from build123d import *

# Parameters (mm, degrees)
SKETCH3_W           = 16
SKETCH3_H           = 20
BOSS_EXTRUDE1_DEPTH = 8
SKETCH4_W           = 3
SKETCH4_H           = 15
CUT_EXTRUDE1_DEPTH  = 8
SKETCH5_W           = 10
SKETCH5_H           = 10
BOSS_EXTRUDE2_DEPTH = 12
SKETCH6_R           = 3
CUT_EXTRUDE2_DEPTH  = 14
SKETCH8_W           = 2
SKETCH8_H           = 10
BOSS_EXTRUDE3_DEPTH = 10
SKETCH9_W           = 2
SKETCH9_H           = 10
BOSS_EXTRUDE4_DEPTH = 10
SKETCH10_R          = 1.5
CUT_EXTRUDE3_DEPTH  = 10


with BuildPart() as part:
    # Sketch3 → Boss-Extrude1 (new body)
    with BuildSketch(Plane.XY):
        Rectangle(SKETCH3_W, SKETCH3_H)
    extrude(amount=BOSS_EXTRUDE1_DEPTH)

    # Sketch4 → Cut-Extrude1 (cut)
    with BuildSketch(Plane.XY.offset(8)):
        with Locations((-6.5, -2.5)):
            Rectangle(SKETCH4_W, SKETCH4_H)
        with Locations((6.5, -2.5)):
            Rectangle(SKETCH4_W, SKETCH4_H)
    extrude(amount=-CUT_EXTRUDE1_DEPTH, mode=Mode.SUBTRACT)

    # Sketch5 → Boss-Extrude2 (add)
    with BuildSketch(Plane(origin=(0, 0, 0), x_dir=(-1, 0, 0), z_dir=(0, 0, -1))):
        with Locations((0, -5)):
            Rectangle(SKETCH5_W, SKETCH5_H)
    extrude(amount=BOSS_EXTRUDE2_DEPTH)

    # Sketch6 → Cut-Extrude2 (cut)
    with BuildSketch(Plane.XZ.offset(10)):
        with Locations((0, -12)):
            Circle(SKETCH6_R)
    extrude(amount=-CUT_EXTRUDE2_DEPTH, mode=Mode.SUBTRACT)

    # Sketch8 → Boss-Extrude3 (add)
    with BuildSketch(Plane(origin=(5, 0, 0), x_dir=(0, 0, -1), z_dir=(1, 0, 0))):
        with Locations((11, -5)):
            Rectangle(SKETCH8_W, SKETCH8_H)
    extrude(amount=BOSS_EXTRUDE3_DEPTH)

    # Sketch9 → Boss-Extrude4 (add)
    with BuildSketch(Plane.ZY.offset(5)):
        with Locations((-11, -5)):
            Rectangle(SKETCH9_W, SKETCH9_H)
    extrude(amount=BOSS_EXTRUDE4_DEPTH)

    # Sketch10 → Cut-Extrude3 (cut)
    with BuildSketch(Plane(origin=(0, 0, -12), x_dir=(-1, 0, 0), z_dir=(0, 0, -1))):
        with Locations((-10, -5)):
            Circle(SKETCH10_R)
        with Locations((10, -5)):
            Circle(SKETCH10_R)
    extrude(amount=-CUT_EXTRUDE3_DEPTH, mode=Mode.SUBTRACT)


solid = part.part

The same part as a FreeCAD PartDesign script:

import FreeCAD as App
import Part
import Sketcher

V = App.Vector
Q = App.Units.Quantity

doc = App.newDocument("Part")
body = doc.addObject("PartDesign::Body", "Body")

# Sketch on XY plane
sketch1 = body.newObject("Sketcher::SketchObject", "Sketch")
sketch1.AttachmentSupport = (doc.getObject("XY_Plane"), [""])
sketch1.MapMode = "FlatFace"
sketch1.addGeometry([
    Part.LineSegment(V(-8, 10, 0), V(-8, -10, 0)),
    Part.LineSegment(V(-8, -10, 0), V(8, -10, 0)),
    Part.LineSegment(V(8, -10, 0), V(8, 10, 0)),
    Part.LineSegment(V(8, 10, 0), V(-8, 10, 0)),
], False)
sketch1.addConstraint([
    Sketcher.Constraint("Coincident", 0, 2, 1, 1),
    Sketcher.Constraint("Coincident", 1, 2, 2, 1),
    Sketcher.Constraint("Coincident", 2, 2, 3, 1),
    Sketcher.Constraint("Coincident", 3, 2, 0, 1),
    Sketcher.Constraint("Vertical", 0),
    Sketcher.Constraint("Horizontal", 1),
    Sketcher.Constraint("Vertical", 2),
    Sketcher.Constraint("Horizontal", 3),
    Sketcher.Constraint("Symmetric", 0, 2, 2, 2, -1, 1),
    Sketcher.Constraint("DistanceX", 1, 1, 1, 2, Q("16 mm")),
    Sketcher.Constraint("DistanceY", 0, 2, 0, 1, Q("20 mm")),
])
pad1 = body.newObject("PartDesign::Pad", "Pad")
pad1.Profile = sketch1
pad1.Length = 8

# Sketch on XY plane
sketch2 = body.newObject("Sketcher::SketchObject", "Sketch001")
sketch2.AttachmentSupport = (doc.getObject("XY_Plane"), [""])
sketch2.MapMode = "FlatFace"
sketch2.AttachmentOffset = App.Placement(V(0, 0, 8), App.Rotation())
sketch2.addGeometry([
    Part.LineSegment(V(-8, 5, 0), V(-8, -10, 0)),  # 0
    Part.LineSegment(V(-8, -10, 0), V(-5, -10, 0)),  # 1
    Part.LineSegment(V(-5, -10, 0), V(-5, 5, 0)),  # 2
    Part.LineSegment(V(-5, 5, 0), V(-8, 5, 0)),  # 3
    Part.LineSegment(V(5, 5, 0), V(5, -10, 0)),  # 4
    Part.LineSegment(V(5, -10, 0), V(8, -10, 0)),  # 5
    Part.LineSegment(V(8, -10, 0), V(8, 5, 0)),  # 6
    Part.LineSegment(V(8, 5, 0), V(5, 5, 0)),  # 7
], False)
sketch2.addConstraint([
    Sketcher.Constraint("Coincident", 0, 2, 1, 1),
    Sketcher.Constraint("Coincident", 1, 2, 2, 1),
    Sketcher.Constraint("Coincident", 2, 2, 3, 1),
    Sketcher.Constraint("Coincident", 3, 2, 0, 1),
    Sketcher.Constraint("Coincident", 4, 2, 5, 1),
    Sketcher.Constraint("Coincident", 5, 2, 6, 1),
    Sketcher.Constraint("Coincident", 6, 2, 7, 1),
    Sketcher.Constraint("Coincident", 7, 2, 4, 1),
    Sketcher.Constraint("Vertical", 0),
    Sketcher.Constraint("Horizontal", 1),
    Sketcher.Constraint("Vertical", 2),
    Sketcher.Constraint("Horizontal", 3),
    Sketcher.Constraint("Vertical", 4),
    Sketcher.Constraint("Horizontal", 5),
    Sketcher.Constraint("Vertical", 6),
    Sketcher.Constraint("Horizontal", 7),
    Sketcher.Constraint("Symmetric", 1, 2, 4, 2, -2),
    Sketcher.Constraint("Symmetric", 3, 2, 6, 2, -2),
    Sketcher.Constraint("DistanceX", 1, 1, 1, 2, Q("3 mm")),
    Sketcher.Constraint("DistanceY", 0, 2, 0, 1, Q("15 mm")),
    Sketcher.Constraint("DistanceX", 0, 2, -1, 1, Q("8 mm")),
    Sketcher.Constraint("DistanceY", 0, 2, -1, 1, Q("10 mm")),
])
pocket1 = body.newObject("PartDesign::Pocket", "Pocket")
pocket1.Profile = sketch2
pocket1.Length = 8

# Sketch on XY plane
sketch3 = body.newObject("Sketcher::SketchObject", "Sketch002")
sketch3.AttachmentSupport = (doc.getObject("XY_Plane"), [""])
sketch3.MapMode = "FlatFace"
sketch3.addGeometry([
    Part.LineSegment(V(5, 0, 0), V(5, -10, 0)),
    Part.LineSegment(V(5, -10, 0), V(-5, -10, 0)),
    Part.LineSegment(V(-5, -10, 0), V(-5, 0, 0)),
    Part.LineSegment(V(-5, 0, 0), V(5, 0, 0)),
], False)
sketch3.addConstraint([
    Sketcher.Constraint("Coincident", 0, 2, 1, 1),
    Sketcher.Constraint("Coincident", 1, 2, 2, 1),
    Sketcher.Constraint("Coincident", 2, 2, 3, 1),
    Sketcher.Constraint("Coincident", 3, 2, 0, 1),
    Sketcher.Constraint("Vertical", 0),
    Sketcher.Constraint("Horizontal", 1),
    Sketcher.Constraint("Vertical", 2),
    Sketcher.Constraint("Horizontal", 3),
    Sketcher.Constraint("Symmetric", 2, 2, 3, 2, -1, 1),
    Sketcher.Constraint("Equal", 3, 0),
    Sketcher.Constraint("DistanceX", 1, 2, 1, 1, Q("10 mm")),
])
pad2 = body.newObject("PartDesign::Pad", "Pad001")
pad2.Profile = sketch3
pad2.Length = 12
pad2.Reversed = True

# Sketch on XZ plane
sketch4 = body.newObject("Sketcher::SketchObject", "Sketch003")
sketch4.AttachmentSupport = (doc.getObject("XZ_Plane"), [""])
sketch4.MapMode = "FlatFace"
sketch4.AttachmentOffset = App.Placement(V(0, 0, 10), App.Rotation())
sketch4.addGeometry(Part.Circle(V(0, -12, 0), V(0, 0, 1), 3), False)
sketch4.addConstraint([
    Sketcher.Constraint("PointOnObject", 0, 3, -2),
    Sketcher.Constraint("Diameter", 0, Q("6 mm")),
    Sketcher.Constraint("DistanceY", 0, 3, -1, 1, Q("12 mm")),
])
pocket2 = body.newObject("PartDesign::Pocket", "Pocket001")
pocket2.Profile = sketch4
pocket2.Length = 14

# Sketch on YZ plane
sketch5 = body.newObject("Sketcher::SketchObject", "Sketch004")
sketch5.AttachmentSupport = (doc.getObject("YZ_Plane"), [""])
sketch5.MapMode = "FlatFace"
sketch5.AttachmentOffset = App.Placement(V(0, 0, 5), App.Rotation())
sketch5.addGeometry([
    Part.LineSegment(V(0, -10, 0), V(-10, -10, 0)),
    Part.LineSegment(V(-10, -10, 0), V(-10, -12, 0)),
    Part.LineSegment(V(-10, -12, 0), V(0, -12, 0)),
    Part.LineSegment(V(0, -12, 0), V(0, -10, 0)),
], False)
sketch5.addConstraint([
    Sketcher.Constraint("Coincident", 0, 2, 1, 1),
    Sketcher.Constraint("Coincident", 1, 2, 2, 1),
    Sketcher.Constraint("Coincident", 2, 2, 3, 1),
    Sketcher.Constraint("Coincident", 3, 2, 0, 1),
    Sketcher.Constraint("Horizontal", 0),
    Sketcher.Constraint("Vertical", 1),
    Sketcher.Constraint("Horizontal", 2),
    Sketcher.Constraint("Vertical", 3),
    Sketcher.Constraint("PointOnObject", 2, 2, -2),
    Sketcher.Constraint("DistanceX", 0, 2, 0, 1, Q("10 mm")),
    Sketcher.Constraint("DistanceY", 1, 2, 1, 1, Q("2 mm")),
    Sketcher.Constraint("DistanceY", 0, 2, -1, 1, Q("10 mm")),
])
pad3 = body.newObject("PartDesign::Pad", "Pad002")
pad3.Profile = sketch5
pad3.Length = 10

# Sketch on YZ plane
sketch6 = body.newObject("Sketcher::SketchObject", "Sketch005")
sketch6.AttachmentSupport = (doc.getObject("YZ_Plane"), [""])
sketch6.MapMode = "FlatFace"
sketch6.AttachmentOffset = App.Placement(V(0, 0, -5), App.Rotation())
sketch6.addGeometry([
    Part.LineSegment(V(0, -12, 0), V(-10, -12, 0)),
    Part.LineSegment(V(-10, -12, 0), V(-10, -10, 0)),
    Part.LineSegment(V(-10, -10, 0), V(0, -10, 0)),
    Part.LineSegment(V(0, -10, 0), V(0, -12, 0)),
], False)
sketch6.addConstraint([
    Sketcher.Constraint("Coincident", 0, 2, 1, 1),
    Sketcher.Constraint("Coincident", 1, 2, 2, 1),
    Sketcher.Constraint("Coincident", 2, 2, 3, 1),
    Sketcher.Constraint("Coincident", 3, 2, 0, 1),
    Sketcher.Constraint("Horizontal", 0),
    Sketcher.Constraint("Vertical", 1),
    Sketcher.Constraint("Horizontal", 2),
    Sketcher.Constraint("Vertical", 3),
    Sketcher.Constraint("PointOnObject", 2, 2, -2),
    Sketcher.Constraint("DistanceX", 0, 2, 0, 1, Q("10 mm")),
    Sketcher.Constraint("DistanceY", 1, 1, 1, 2, Q("2 mm")),
    Sketcher.Constraint("DistanceY", 0, 2, -1, 1, Q("12 mm")),
])
pad4 = body.newObject("PartDesign::Pad", "Pad003")
pad4.Profile = sketch6
pad4.Length = 10
pad4.Reversed = True

# Sketch on XY plane
sketch7 = body.newObject("Sketcher::SketchObject", "Sketch006")
sketch7.AttachmentSupport = (doc.getObject("XY_Plane"), [""])
sketch7.MapMode = "FlatFace"
sketch7.AttachmentOffset = App.Placement(V(0, 0, -12), App.Rotation())
sketch7.addGeometry([
    Part.Circle(V(10, -5, 0), V(0, 0, 1), 1.5),
    Part.Circle(V(-10, -5, 0), V(0, 0, 1), 1.5),
], False)
sketch7.addConstraint([
    Sketcher.Constraint("Equal", 0, 1),
    Sketcher.Constraint("Symmetric", 0, 3, 1, 3, -2),
    Sketcher.Constraint("Diameter", 0, Q("3 mm")),
    Sketcher.Constraint("DistanceX", -1, 1, 0, 3, Q("10 mm")),
    Sketcher.Constraint("DistanceY", 0, 3, -1, 1, Q("5 mm")),
])
pocket3 = body.newObject("PartDesign::Pocket", "Pocket002")
pocket3.Profile = sketch7
pocket3.Length = 10
pocket3.Reversed = True

doc.recompute()
